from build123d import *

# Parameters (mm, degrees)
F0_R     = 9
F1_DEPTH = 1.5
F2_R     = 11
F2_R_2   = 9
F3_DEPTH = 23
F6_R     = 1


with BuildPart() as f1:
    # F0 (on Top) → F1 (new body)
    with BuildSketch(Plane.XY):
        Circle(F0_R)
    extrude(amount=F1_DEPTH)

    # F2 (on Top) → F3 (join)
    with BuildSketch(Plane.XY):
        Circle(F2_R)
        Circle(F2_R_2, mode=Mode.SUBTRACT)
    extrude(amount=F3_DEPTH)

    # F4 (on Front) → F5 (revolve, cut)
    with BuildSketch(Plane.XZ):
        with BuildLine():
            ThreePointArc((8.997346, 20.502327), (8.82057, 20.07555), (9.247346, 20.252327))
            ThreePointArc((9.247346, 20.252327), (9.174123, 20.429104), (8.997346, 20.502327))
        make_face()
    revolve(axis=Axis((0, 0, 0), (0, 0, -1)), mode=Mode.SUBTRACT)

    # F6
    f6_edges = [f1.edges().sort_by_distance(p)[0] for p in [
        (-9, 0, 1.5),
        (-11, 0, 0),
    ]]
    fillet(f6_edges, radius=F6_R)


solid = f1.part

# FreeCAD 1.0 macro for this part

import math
import FreeCAD as App
import Part
import Sketcher

V = App.Vector
Q = App.Units.Quantity


def edges_at(feature, points):
    """Names of the edges that pass closest to the given points."""
    edges = feature.Shape.Edges
    near = lambda p: min(range(len(edges)), key=lambda i: edges[i].distToShape(Part.Vertex(*p))[0])
    return sorted({f"Edge{near(p) + 1}" for p in points})

doc = App.newDocument("Part")
body = doc.addObject("PartDesign::Body", "Body")

sketch1 = doc.addObject("Sketcher::SketchObject", "Sketch")
body.addObject(sketch1)
sketch1.AttachmentSupport = (doc.XY_Plane, [""])
sketch1.MapMode = "FlatFace"
sketch1.addGeometry(Part.Circle(V(0, 0, 0), V(0, 0, 1), 9), False)
sketch1.addConstraint(Sketcher.Constraint("Coincident", 0, 3, -1, 1))
sketch1.addConstraint(Sketcher.Constraint("Diameter", 0, Q("18 mm")))
pad1 = doc.addObject("PartDesign::Pad", "Pad")
body.addObject(pad1)
pad1.Profile = sketch1
pad1.Length = 1.5

sketch2 = doc.addObject("Sketcher::SketchObject", "Sketch001")
body.addObject(sketch2)
sketch2.AttachmentSupport = (doc.XY_Plane, [""])
sketch2.MapMode = "FlatFace"
sketch2.addGeometry(Part.Circle(V(0, 0, 0), V(0, 0, 1), 11), False)
sketch2.addGeometry(Part.Circle(V(0, 0, 0), V(0, 0, 1), 9), False)
sketch2.addConstraint(Sketcher.Constraint("Coincident", 0, 3, -1, 1))
sketch2.addConstraint(Sketcher.Constraint("Coincident", 1, 3, -1, 1))
sketch2.addConstraint(Sketcher.Constraint("Diameter", 0, Q("22 mm")))
sketch2.addConstraint(Sketcher.Constraint("Diameter", 1, Q("18 mm")))
pad2 = doc.addObject("PartDesign::Pad", "Pad001")
body.addObject(pad2)
pad2.Profile = sketch2
pad2.Length = 23

sketch3 = doc.addObject("Sketcher::SketchObject", "Sketch002")
body.addObject(sketch3)
sketch3.AttachmentSupport = (doc.XZ_Plane, [""])
sketch3.MapMode = "FlatFace"
sketch3.addGeometry(Part.ArcOfCircle(Part.Circle(V(9, 20.25, 0), V(0, 0, 1), 0.25), math.radians(90), math.radians(360)), False)
sketch3.addGeometry(Part.ArcOfCircle(Part.Circle(V(9, 20.25, 0), V(0, 0, 1), 0.25), math.radians(0), math.radians(90)), False)
sketch3.addConstraint(Sketcher.Constraint("Coincident", 0, 1, 1, 2))
sketch3.addConstraint(Sketcher.Constraint("Coincident", 1, 1, 0, 2))
sketch3.addConstraint(Sketcher.Constraint("Equal", 0, 1))
sketch3.addConstraint(Sketcher.Constraint("Horizontal", 0, 3, 1, 1))
sketch3.addConstraint(Sketcher.Constraint("Vertical", 1, 3, 0, 1))
sketch3.addConstraint(Sketcher.Constraint("Radius", 0, Q("0.25 mm")))
sketch3.addConstraint(Sketcher.Constraint("DistanceY", -1, 1, 1, 3, Q("20.252328 mm")))
sketch3.addConstraint(Sketcher.Constraint("DistanceX", -1, 1, 0, 3, Q("8.997346 mm")))
groove = doc.addObject("PartDesign::Groove", "Groove")
body.addObject(groove)
groove.Profile = sketch3
groove.ReferenceAxis = (sketch3, ["V_Axis"])
groove.Angle = 360
doc.recompute()

fillet = doc.addObject("PartDesign::Fillet", "Fillet")
body.addObject(fillet)
fillet.Base = (groove, edges_at(groove, [(-9, 0, 1.5), (-11, 0, 0)]))
fillet.Radius = 1

doc.recompute()
